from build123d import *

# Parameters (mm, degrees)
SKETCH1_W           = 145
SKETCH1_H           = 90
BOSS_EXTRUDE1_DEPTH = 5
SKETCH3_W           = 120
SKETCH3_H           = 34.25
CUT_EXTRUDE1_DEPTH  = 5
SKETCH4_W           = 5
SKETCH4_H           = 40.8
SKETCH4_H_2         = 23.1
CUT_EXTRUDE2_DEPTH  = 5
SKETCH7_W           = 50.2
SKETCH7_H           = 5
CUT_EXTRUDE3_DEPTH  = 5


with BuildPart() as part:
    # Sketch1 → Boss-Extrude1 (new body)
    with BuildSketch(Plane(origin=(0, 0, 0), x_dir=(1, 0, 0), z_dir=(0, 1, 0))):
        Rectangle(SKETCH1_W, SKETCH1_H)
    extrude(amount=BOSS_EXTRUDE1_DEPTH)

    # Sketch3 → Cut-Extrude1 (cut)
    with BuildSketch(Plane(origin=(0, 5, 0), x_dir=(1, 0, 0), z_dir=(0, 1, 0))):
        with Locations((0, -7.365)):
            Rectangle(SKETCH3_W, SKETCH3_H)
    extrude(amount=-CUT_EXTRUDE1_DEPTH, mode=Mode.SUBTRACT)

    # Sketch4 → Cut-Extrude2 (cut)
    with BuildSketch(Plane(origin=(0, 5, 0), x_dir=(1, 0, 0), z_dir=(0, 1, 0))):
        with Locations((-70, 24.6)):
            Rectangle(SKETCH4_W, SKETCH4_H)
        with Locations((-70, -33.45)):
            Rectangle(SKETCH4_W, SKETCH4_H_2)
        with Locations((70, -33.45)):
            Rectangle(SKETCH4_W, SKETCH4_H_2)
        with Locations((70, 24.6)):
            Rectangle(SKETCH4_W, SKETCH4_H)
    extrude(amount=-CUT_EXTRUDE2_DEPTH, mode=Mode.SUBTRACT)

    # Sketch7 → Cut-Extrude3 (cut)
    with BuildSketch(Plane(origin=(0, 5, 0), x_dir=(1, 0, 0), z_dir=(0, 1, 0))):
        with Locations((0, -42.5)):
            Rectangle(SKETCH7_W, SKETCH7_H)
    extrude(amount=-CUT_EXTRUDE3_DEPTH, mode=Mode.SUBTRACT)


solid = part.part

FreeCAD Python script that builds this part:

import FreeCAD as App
import Part
import Sketcher
from FreeCAD import Vector

doc = App.newDocument("Part")
body = doc.addObject("PartDesign::Body", "Body")

# Sketch on XZ plane
sketch1 = body.newObject("Sketcher::SketchObject", "Sketch")
sketch1.AttachmentSupport = (doc.getObject("XZ_Plane"), [""])
sketch1.MapMode = "FlatFace"
sketch1.addGeometry([
    Part.LineSegment(Vector(-72.5, -45, 0), Vector(-72.5, 45, 0)),
    Part.LineSegment(Vector(-72.5, 45, 0), Vector(72.5, 45, 0)),
    Part.LineSegment(Vector(72.5, 45, 0), Vector(72.5, -45, 0)),
    Part.LineSegment(Vector(72.5, -45, 0), Vector(-72.5, -45, 0)),
], False)
sketch1.addConstraint([
    Sketcher.Constraint("Coincident", 0, 2, 1, 1),
    Sketcher.Constraint("Coincident", 1, 2, 2, 1),
    Sketcher.Constraint("Coincident", 2, 2, 3, 1),
    Sketcher.Constraint("Coincident", 3, 2, 0, 1),
    Sketcher.Constraint("Vertical", 0),
    Sketcher.Constraint("Horizontal", 1),
    Sketcher.Constraint("Vertical", 2),
    Sketcher.Constraint("Horizontal", 3),
    Sketcher.Constraint("Symmetric", 0, 2, 2, 2, -1, 1),
    Sketcher.Constraint("DistanceX", 1, 1, 1, 2, 145.0),
    Sketcher.Constraint("DistanceY", 0, 1, 0, 2, 90.0),
])
pad1 = body.newObject("PartDesign::Pad", "Pad")
pad1.Profile = sketch1
pad1.Length = 5
pad1.Reversed = True

# Sketch on XZ plane
sketch2 = body.newObject("Sketcher::SketchObject", "Sketch001")
sketch2.AttachmentSupport = (doc.getObject("XZ_Plane"), [""])
sketch2.MapMode = "FlatFace"
sketch2.AttachmentOffset = App.Placement(Vector(0, 0, -5), App.Rotation())
sketch2.addGeometry([
    Part.LineSegment(Vector(-60, -9.76, 0), Vector(-60, 24.49, 0)),
    Part.LineSegment(Vector(-60, 24.49, 0), Vector(60, 24.49, 0)),
    Part.LineSegment(Vector(60, 24.49, 0), Vector(60, -9.76, 0)),
    Part.LineSegment(Vector(60, -9.76, 0), Vector(-60, -9.76, 0)),
], False)
sketch2.addConstraint([
    Sketcher.Constraint("Coincident", 0, 2, 1, 1),
    Sketcher.Constraint("Coincident", 1, 2, 2, 1),
    Sketcher.Constraint("Coincident", 2, 2, 3, 1),
    Sketcher.Constraint("Coincident", 3, 2, 0, 1),
    Sketcher.Constraint("Vertical", 0),
    Sketcher.Constraint("Horizontal", 1),
    Sketcher.Constraint("Vertical", 2),
    Sketcher.Constraint("Horizontal", 3),
    Sketcher.Constraint("DistanceX", 1, 1, 1, 2, 120.0),
    Sketcher.Constraint("DistanceX", 0, 2, -1, 1, 60.0),
    Sketcher.Constraint("DistanceY", 0, 1, 0, 2, 34.25),
    Sketcher.Constraint("DistanceY", -1, 1, 0, 2, 24.49),
])
pocket1 = body.newObject("PartDesign::Pocket", "Pocket")
pocket1.Profile = sketch2
pocket1.Length = 5
pocket1.Reversed = True

# Sketch on XZ plane
sketch3 = body.newObject("Sketcher::SketchObject", "Sketch002")
sketch3.AttachmentSupport = (doc.getObject("XZ_Plane"), [""])
sketch3.MapMode = "FlatFace"
sketch3.AttachmentOffset = App.Placement(Vector(0, 0, -5), App.Rotation())
sketch3.addGeometry([
    Part.LineSegment(Vector(-72.5, -45, 0), Vector(-72.5, -4.2, 0)),  # 0
    Part.LineSegment(Vector(-72.5, -4.2, 0), Vector(-67.5, -4.2, 0)),  # 1
    Part.LineSegment(Vector(-67.5, -4.2, 0), Vector(-67.5, -45, 0)),  # 2
    Part.LineSegment(Vector(-67.5, -45, 0), Vector(-72.5, -45, 0)),  # 3
    Part.LineSegment(Vector(-72.5, 21.9, 0), Vector(-72.5, 45, 0)),  # 4
    Part.LineSegment(Vector(-72.5, 45, 0), Vector(-67.5, 45, 0)),  # 5
    Part.LineSegment(Vector(-67.5, 45, 0), Vector(-67.5, 21.9, 0)),  # 6
    Part.LineSegment(Vector(-67.5, 21.9, 0), Vector(-72.5, 21.9, 0)),  # 7
    Part.LineSegment(Vector(67.5, 21.9, 0), Vector(67.5, 45, 0)),  # 8
    Part.LineSegment(Vector(67.5, 45, 0), Vector(72.5, 45, 0)),  # 9
    Part.LineSegment(Vector(72.5, 45, 0), Vector(72.5, 21.9, 0)),  # 10
    Part.LineSegment(Vector(72.5, 21.9, 0), Vector(67.5, 21.9, 0)),  # 11
    Part.LineSegment(Vector(67.5, -45, 0), Vector(67.5, -4.2, 0)),  # 12
    Part.LineSegment(Vector(67.5, -4.2, 0), Vector(72.5, -4.2, 0)),  # 13
    Part.LineSegment(Vector(72.5, -4.2, 0), Vector(72.5, -45, 0)),  # 14
    Part.LineSegment(Vector(72.5, -45, 0), Vector(67.5, -45, 0)),  # 15
], False)
sketch3.addConstraint([
    Sketcher.Constraint("Coincident", 0, 2, 1, 1),
    Sketcher.Constraint("Coincident", 1, 2, 2, 1),
    Sketcher.Constraint("Coincident", 2, 2, 3, 1),
    Sketcher.Constraint("Coincident", 3, 2, 0, 1),
    Sketcher.Constraint("Coincident", 4, 2, 5, 1),
    Sketcher.Constraint("Coincident", 5, 2, 6, 1),
    Sketcher.Constraint("Coincident", 6, 2, 7, 1),
    Sketcher.Constraint("Coincident", 7, 2, 4, 1),
    Sketcher.Constraint("Coincident", 8, 2, 9, 1),
    Sketcher.Constraint("Coincident", 9, 2, 10, 1),
    Sketcher.Constraint("Coincident", 10, 2, 11, 1),
    Sketcher.Constraint("Coincident", 11, 2, 8, 1),
    Sketcher.Constraint("Coincident", 12, 2, 13, 1),
    Sketcher.Constraint("Coincident", 13, 2, 14, 1),
    Sketcher.Constraint("Coincident", 14, 2, 15, 1),
    Sketcher.Constraint("Coincident", 15, 2, 12, 1),
    Sketcher.Constraint("Vertical", 0),
    Sketcher.Constraint("Horizontal", 1),
    Sketcher.Constraint("Vertical", 2),
    Sketcher.Constraint("Horizontal", 3),
    Sketcher.Constraint("Vertical", 4),
    Sketcher.Constraint("Horizontal", 5),
    Sketcher.Constraint("Vertical", 6),
    Sketcher.Constraint("Horizontal", 7),
    Sketcher.Constraint("Vertical", 8),
    Sketcher.Constraint("Horizontal", 9),
    Sketcher.Constraint("Vertical", 10),
    Sketcher.Constraint("Horizontal", 11),
    Sketcher.Constraint("Vertical", 12),
    Sketcher.Constraint("Horizontal", 13),
    Sketcher.Constraint("Vertical", 14),
    Sketcher.Constraint("Horizontal", 15),
    Sketcher.Constraint("Symmetric", 2, 2, 8, 2, -1, 1),
    Sketcher.Constraint("Symmetric", 4, 2, 14, 2, -1, 1),
    Sketcher.Constraint("Symmetric", 5, 2, 8, 2, -2),
    Sketcher.Constraint("Symmetric", 7, 2, 10, 2, -2),
    Sketcher.Constraint("Symmetric", 1, 2, 12, 2, -2),
    Sketcher.Constraint("Vertical", 3, 2, 4, 2),
    Sketcher.Constraint("DistanceX", 1, 1, 1, 2, 5.0),
    Sketcher.Constraint("DistanceY", 0, 1, 0, 2, 40.8),
    Sketcher.Constraint("DistanceY", 4, 1, 4, 2, 23.1),
    Sketcher.Constraint("DistanceY", 2, 2, -1, 1, 45.0),
    Sketcher.Constraint("DistanceX", 5, 2, 8, 2, 135.0),
])
pocket2 = body.newObject("PartDesign::Pocket", "Pocket001")
pocket2.Profile = sketch3
pocket2.Length = 5
pocket2.Reversed = True

# Sketch on XZ plane
sketch4 = body.newObject("Sketcher::SketchObject", "Sketch003")
sketch4.AttachmentSupport = (doc.getObject("XZ_Plane"), [""])
sketch4.MapMode = "FlatFace"
sketch4.AttachmentOffset = App.Placement(Vector(0, 0, -5), App.Rotation())
sketch4.addGeometry([
    Part.LineSegment(Vector(-25.1, 40, 0), Vector(-25.1, 45, 0)),
    Part.LineSegment(Vector(-25.1, 45, 0), Vector(25.1, 45, 0)),
    Part.LineSegment(Vector(25.1, 45, 0), Vector(25.1, 40, 0)),
    Part.LineSegment(Vector(25.1, 40, 0), Vector(-25.1, 40, 0)),
], False)
sketch4.addConstraint([
    Sketcher.Constraint("Coincident", 0, 2, 1, 1),
    Sketcher.Constraint("Coincident", 1, 2, 2, 1),
    Sketcher.Constraint("Coincident", 2, 2, 3, 1),
    Sketcher.Constraint("Coincident", 3, 2, 0, 1),
    Sketcher.Constraint("Vertical", 0),
    Sketcher.Constraint("Horizontal", 1),
    Sketcher.Constraint("Vertical", 2),
    Sketcher.Constraint("Horizontal", 3),
    Sketcher.Constraint("DistanceY", 0, 1, 0, 2, 5.0),
    Sketcher.Constraint("DistanceX", 1, 1, 1, 2, 50.2),
    Sketcher.Constraint("DistanceY", -1, 1, 0, 2, 45.0),
    Sketcher.Constraint("DistanceX", 0, 2, -1, 1, 25.1),
])
pocket3 = body.newObject("PartDesign::Pocket", "Pocket002")
pocket3.Profile = sketch4
pocket3.Length = 5
pocket3.Reversed = True

doc.recompute()
